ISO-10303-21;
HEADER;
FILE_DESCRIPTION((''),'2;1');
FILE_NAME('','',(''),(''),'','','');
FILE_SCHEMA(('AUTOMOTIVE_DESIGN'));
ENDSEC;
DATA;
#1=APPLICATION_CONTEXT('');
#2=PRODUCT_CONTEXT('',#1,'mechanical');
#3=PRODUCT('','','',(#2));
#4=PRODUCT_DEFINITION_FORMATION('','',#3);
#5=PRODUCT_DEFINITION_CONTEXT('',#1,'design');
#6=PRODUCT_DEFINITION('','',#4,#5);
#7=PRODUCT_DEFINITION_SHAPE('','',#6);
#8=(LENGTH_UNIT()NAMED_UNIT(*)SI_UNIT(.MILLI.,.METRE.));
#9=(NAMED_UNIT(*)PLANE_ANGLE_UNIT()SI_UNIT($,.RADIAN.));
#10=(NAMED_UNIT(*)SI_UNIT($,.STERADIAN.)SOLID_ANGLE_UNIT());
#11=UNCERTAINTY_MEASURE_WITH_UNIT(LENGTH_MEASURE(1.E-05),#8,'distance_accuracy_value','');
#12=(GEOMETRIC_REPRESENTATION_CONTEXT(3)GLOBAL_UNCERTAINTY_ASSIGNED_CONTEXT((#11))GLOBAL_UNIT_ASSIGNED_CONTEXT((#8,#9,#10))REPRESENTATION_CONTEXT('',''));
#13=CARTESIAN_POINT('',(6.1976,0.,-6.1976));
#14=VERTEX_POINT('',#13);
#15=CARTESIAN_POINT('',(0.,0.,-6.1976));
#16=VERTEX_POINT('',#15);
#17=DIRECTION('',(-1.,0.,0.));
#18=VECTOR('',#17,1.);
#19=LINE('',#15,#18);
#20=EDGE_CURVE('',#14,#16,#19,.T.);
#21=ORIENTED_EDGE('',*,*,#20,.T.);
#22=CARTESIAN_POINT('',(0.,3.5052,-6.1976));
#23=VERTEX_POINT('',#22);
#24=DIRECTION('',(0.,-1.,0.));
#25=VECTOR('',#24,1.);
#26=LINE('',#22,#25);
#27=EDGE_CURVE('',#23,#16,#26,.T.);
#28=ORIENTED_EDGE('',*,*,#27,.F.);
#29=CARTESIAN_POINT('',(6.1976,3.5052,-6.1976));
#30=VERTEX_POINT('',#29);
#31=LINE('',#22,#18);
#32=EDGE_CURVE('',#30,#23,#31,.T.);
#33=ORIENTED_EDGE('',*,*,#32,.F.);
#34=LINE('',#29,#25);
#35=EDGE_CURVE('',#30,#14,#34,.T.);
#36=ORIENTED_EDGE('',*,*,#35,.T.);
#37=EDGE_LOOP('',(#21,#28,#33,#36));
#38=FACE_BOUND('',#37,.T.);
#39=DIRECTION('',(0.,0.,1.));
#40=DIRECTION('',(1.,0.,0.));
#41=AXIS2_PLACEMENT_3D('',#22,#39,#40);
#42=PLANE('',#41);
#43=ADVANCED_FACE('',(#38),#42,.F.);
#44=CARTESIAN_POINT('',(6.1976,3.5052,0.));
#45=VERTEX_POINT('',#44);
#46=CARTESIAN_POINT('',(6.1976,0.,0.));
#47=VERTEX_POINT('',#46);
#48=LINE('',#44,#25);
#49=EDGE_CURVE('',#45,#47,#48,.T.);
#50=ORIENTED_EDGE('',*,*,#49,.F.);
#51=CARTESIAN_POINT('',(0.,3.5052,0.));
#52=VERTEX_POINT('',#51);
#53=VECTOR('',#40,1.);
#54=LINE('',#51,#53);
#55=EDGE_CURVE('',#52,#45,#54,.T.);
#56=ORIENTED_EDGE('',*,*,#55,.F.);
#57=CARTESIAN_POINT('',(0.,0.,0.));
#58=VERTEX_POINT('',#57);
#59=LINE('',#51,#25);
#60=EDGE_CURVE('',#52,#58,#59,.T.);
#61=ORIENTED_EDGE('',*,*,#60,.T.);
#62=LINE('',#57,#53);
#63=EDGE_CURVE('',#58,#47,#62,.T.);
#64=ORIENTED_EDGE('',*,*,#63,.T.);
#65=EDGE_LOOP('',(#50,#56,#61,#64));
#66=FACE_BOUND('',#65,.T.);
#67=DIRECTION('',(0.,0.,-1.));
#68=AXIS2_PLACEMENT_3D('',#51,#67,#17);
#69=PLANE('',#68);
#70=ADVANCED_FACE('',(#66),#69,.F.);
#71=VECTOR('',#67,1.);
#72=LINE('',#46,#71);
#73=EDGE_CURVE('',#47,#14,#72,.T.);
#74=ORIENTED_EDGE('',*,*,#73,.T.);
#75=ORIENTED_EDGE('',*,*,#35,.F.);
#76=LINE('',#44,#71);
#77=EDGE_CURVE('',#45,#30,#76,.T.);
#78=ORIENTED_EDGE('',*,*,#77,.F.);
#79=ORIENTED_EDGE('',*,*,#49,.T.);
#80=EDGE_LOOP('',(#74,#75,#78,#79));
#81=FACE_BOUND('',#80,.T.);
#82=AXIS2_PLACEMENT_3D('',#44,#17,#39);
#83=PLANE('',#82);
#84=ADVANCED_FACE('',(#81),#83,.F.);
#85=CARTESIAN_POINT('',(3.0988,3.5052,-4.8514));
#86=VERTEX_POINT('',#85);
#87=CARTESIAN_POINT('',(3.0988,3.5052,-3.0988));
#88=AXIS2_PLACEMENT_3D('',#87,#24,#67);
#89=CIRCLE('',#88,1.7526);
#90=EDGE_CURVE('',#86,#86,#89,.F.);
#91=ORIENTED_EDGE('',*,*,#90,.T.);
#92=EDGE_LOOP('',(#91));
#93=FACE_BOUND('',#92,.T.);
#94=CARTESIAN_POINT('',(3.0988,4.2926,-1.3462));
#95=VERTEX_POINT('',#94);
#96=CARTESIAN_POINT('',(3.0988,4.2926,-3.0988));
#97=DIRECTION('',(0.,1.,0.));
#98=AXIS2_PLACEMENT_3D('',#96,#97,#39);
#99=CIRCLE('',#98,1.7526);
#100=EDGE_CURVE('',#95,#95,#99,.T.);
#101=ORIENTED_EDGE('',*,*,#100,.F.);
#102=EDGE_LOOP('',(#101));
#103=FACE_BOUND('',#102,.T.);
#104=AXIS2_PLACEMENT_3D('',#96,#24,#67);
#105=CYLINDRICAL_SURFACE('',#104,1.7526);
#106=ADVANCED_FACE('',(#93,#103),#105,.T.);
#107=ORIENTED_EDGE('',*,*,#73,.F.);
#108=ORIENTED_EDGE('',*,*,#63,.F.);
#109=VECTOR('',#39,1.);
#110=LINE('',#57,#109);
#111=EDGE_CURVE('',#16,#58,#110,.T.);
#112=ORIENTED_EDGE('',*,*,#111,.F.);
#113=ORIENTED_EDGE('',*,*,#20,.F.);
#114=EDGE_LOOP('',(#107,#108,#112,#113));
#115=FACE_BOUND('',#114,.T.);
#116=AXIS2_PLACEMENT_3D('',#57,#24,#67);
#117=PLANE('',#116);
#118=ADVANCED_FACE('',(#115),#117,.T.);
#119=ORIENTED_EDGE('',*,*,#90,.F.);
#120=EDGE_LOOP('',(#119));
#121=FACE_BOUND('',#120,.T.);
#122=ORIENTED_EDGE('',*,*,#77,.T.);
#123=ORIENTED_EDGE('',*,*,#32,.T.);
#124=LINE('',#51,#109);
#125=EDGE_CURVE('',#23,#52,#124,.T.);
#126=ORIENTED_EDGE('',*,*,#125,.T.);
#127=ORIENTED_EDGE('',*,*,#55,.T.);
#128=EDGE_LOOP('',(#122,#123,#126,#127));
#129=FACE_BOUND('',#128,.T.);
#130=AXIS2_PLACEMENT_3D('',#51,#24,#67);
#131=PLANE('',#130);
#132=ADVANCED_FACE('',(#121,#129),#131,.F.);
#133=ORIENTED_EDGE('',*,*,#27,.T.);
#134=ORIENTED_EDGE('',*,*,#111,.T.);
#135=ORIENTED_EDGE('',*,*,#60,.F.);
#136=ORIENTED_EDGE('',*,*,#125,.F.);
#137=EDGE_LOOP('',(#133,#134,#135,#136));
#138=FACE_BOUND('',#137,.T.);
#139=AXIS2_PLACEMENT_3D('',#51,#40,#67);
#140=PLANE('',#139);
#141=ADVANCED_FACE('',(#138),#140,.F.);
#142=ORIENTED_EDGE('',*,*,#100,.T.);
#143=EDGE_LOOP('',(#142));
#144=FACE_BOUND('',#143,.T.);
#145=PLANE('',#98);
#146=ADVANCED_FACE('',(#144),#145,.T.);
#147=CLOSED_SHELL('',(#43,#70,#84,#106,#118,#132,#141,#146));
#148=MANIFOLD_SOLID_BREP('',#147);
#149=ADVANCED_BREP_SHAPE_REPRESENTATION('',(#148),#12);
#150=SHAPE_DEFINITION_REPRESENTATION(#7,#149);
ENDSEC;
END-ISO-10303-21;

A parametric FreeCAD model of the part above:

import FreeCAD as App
import Part
import Sketcher
from FreeCAD import Vector
Q = App.Units.Quantity

doc = App.newDocument("Part")
body = doc.addObject("PartDesign::Body", "Body")

# Sketch on XZ plane
sketch1 = body.newObject("Sketcher::SketchObject", "Sketch")
sketch1.AttachmentSupport = (doc.getObject("XZ_Plane"), [""])
sketch1.MapMode = "FlatFace"
sketch1.addGeometry([
    Part.LineSegment(Vector(0, -6.1976, 0), Vector(0, 0, 0)),
    Part.LineSegment(Vector(0, 0, 0), Vector(6.1976, 0, 0)),
    Part.LineSegment(Vector(6.1976, 0, 0), Vector(6.1976, -6.1976, 0)),
    Part.LineSegment(Vector(6.1976, -6.1976, 0), Vector(0, -6.1976, 0)),
], False)
sketch1.addConstraint([
    Sketcher.Constraint("Coincident", 0, 2, 1, 1),
    Sketcher.Constraint("Coincident", 1, 2, 2, 1),
    Sketcher.Constraint("Coincident", 2, 2, 3, 1),
    Sketcher.Constraint("Coincident", 3, 2, 0, 1),
    Sketcher.Constraint("Vertical", 0),
    Sketcher.Constraint("Horizontal", 1),
    Sketcher.Constraint("Vertical", 2),
    Sketcher.Constraint("Horizontal", 3),
    Sketcher.Constraint("Coincident", 0, 2, -1, 1),
    Sketcher.Constraint("Equal", 3, 0),
    Sketcher.Constraint("DistanceX", 1, 1, 1, 2, Q("0.244 in")),
])
pad1 = body.newObject("PartDesign::Pad", "Pad")
pad1.Profile = sketch1
pad1.Length = Q("0.138 in")
pad1.Reversed = True

# Sketch on XZ plane
sketch2 = body.newObject("Sketcher::SketchObject", "Sketch001")
sketch2.AttachmentSupport = (doc.getObject("XZ_Plane"), [""])
sketch2.MapMode = "FlatFace"
sketch2.AttachmentOffset = App.Placement(Vector(0, 0, -0.138 * 25.4), App.Rotation())
sketch2.addGeometry(Part.Circle(Vector(3.0988, -3.0988, 0), Vector(0, 0, 1), 1.7526), False)
sketch2.addConstraint([
    Sketcher.Constraint("Diameter", 0, Q("0.138 in")),
    Sketcher.Constraint("DistanceX", -1, 1, 0, 3, Q("0.122 in")),
    Sketcher.Constraint("DistanceY", 0, 3, -1, 1, Q("0.122 in")),
])
pad2 = body.newObject("PartDesign::Pad", "Pad001")
pad2.Profile = sketch2
pad2.Length = Q("0.031 in")
pad2.Reversed = True

doc.recompute()
